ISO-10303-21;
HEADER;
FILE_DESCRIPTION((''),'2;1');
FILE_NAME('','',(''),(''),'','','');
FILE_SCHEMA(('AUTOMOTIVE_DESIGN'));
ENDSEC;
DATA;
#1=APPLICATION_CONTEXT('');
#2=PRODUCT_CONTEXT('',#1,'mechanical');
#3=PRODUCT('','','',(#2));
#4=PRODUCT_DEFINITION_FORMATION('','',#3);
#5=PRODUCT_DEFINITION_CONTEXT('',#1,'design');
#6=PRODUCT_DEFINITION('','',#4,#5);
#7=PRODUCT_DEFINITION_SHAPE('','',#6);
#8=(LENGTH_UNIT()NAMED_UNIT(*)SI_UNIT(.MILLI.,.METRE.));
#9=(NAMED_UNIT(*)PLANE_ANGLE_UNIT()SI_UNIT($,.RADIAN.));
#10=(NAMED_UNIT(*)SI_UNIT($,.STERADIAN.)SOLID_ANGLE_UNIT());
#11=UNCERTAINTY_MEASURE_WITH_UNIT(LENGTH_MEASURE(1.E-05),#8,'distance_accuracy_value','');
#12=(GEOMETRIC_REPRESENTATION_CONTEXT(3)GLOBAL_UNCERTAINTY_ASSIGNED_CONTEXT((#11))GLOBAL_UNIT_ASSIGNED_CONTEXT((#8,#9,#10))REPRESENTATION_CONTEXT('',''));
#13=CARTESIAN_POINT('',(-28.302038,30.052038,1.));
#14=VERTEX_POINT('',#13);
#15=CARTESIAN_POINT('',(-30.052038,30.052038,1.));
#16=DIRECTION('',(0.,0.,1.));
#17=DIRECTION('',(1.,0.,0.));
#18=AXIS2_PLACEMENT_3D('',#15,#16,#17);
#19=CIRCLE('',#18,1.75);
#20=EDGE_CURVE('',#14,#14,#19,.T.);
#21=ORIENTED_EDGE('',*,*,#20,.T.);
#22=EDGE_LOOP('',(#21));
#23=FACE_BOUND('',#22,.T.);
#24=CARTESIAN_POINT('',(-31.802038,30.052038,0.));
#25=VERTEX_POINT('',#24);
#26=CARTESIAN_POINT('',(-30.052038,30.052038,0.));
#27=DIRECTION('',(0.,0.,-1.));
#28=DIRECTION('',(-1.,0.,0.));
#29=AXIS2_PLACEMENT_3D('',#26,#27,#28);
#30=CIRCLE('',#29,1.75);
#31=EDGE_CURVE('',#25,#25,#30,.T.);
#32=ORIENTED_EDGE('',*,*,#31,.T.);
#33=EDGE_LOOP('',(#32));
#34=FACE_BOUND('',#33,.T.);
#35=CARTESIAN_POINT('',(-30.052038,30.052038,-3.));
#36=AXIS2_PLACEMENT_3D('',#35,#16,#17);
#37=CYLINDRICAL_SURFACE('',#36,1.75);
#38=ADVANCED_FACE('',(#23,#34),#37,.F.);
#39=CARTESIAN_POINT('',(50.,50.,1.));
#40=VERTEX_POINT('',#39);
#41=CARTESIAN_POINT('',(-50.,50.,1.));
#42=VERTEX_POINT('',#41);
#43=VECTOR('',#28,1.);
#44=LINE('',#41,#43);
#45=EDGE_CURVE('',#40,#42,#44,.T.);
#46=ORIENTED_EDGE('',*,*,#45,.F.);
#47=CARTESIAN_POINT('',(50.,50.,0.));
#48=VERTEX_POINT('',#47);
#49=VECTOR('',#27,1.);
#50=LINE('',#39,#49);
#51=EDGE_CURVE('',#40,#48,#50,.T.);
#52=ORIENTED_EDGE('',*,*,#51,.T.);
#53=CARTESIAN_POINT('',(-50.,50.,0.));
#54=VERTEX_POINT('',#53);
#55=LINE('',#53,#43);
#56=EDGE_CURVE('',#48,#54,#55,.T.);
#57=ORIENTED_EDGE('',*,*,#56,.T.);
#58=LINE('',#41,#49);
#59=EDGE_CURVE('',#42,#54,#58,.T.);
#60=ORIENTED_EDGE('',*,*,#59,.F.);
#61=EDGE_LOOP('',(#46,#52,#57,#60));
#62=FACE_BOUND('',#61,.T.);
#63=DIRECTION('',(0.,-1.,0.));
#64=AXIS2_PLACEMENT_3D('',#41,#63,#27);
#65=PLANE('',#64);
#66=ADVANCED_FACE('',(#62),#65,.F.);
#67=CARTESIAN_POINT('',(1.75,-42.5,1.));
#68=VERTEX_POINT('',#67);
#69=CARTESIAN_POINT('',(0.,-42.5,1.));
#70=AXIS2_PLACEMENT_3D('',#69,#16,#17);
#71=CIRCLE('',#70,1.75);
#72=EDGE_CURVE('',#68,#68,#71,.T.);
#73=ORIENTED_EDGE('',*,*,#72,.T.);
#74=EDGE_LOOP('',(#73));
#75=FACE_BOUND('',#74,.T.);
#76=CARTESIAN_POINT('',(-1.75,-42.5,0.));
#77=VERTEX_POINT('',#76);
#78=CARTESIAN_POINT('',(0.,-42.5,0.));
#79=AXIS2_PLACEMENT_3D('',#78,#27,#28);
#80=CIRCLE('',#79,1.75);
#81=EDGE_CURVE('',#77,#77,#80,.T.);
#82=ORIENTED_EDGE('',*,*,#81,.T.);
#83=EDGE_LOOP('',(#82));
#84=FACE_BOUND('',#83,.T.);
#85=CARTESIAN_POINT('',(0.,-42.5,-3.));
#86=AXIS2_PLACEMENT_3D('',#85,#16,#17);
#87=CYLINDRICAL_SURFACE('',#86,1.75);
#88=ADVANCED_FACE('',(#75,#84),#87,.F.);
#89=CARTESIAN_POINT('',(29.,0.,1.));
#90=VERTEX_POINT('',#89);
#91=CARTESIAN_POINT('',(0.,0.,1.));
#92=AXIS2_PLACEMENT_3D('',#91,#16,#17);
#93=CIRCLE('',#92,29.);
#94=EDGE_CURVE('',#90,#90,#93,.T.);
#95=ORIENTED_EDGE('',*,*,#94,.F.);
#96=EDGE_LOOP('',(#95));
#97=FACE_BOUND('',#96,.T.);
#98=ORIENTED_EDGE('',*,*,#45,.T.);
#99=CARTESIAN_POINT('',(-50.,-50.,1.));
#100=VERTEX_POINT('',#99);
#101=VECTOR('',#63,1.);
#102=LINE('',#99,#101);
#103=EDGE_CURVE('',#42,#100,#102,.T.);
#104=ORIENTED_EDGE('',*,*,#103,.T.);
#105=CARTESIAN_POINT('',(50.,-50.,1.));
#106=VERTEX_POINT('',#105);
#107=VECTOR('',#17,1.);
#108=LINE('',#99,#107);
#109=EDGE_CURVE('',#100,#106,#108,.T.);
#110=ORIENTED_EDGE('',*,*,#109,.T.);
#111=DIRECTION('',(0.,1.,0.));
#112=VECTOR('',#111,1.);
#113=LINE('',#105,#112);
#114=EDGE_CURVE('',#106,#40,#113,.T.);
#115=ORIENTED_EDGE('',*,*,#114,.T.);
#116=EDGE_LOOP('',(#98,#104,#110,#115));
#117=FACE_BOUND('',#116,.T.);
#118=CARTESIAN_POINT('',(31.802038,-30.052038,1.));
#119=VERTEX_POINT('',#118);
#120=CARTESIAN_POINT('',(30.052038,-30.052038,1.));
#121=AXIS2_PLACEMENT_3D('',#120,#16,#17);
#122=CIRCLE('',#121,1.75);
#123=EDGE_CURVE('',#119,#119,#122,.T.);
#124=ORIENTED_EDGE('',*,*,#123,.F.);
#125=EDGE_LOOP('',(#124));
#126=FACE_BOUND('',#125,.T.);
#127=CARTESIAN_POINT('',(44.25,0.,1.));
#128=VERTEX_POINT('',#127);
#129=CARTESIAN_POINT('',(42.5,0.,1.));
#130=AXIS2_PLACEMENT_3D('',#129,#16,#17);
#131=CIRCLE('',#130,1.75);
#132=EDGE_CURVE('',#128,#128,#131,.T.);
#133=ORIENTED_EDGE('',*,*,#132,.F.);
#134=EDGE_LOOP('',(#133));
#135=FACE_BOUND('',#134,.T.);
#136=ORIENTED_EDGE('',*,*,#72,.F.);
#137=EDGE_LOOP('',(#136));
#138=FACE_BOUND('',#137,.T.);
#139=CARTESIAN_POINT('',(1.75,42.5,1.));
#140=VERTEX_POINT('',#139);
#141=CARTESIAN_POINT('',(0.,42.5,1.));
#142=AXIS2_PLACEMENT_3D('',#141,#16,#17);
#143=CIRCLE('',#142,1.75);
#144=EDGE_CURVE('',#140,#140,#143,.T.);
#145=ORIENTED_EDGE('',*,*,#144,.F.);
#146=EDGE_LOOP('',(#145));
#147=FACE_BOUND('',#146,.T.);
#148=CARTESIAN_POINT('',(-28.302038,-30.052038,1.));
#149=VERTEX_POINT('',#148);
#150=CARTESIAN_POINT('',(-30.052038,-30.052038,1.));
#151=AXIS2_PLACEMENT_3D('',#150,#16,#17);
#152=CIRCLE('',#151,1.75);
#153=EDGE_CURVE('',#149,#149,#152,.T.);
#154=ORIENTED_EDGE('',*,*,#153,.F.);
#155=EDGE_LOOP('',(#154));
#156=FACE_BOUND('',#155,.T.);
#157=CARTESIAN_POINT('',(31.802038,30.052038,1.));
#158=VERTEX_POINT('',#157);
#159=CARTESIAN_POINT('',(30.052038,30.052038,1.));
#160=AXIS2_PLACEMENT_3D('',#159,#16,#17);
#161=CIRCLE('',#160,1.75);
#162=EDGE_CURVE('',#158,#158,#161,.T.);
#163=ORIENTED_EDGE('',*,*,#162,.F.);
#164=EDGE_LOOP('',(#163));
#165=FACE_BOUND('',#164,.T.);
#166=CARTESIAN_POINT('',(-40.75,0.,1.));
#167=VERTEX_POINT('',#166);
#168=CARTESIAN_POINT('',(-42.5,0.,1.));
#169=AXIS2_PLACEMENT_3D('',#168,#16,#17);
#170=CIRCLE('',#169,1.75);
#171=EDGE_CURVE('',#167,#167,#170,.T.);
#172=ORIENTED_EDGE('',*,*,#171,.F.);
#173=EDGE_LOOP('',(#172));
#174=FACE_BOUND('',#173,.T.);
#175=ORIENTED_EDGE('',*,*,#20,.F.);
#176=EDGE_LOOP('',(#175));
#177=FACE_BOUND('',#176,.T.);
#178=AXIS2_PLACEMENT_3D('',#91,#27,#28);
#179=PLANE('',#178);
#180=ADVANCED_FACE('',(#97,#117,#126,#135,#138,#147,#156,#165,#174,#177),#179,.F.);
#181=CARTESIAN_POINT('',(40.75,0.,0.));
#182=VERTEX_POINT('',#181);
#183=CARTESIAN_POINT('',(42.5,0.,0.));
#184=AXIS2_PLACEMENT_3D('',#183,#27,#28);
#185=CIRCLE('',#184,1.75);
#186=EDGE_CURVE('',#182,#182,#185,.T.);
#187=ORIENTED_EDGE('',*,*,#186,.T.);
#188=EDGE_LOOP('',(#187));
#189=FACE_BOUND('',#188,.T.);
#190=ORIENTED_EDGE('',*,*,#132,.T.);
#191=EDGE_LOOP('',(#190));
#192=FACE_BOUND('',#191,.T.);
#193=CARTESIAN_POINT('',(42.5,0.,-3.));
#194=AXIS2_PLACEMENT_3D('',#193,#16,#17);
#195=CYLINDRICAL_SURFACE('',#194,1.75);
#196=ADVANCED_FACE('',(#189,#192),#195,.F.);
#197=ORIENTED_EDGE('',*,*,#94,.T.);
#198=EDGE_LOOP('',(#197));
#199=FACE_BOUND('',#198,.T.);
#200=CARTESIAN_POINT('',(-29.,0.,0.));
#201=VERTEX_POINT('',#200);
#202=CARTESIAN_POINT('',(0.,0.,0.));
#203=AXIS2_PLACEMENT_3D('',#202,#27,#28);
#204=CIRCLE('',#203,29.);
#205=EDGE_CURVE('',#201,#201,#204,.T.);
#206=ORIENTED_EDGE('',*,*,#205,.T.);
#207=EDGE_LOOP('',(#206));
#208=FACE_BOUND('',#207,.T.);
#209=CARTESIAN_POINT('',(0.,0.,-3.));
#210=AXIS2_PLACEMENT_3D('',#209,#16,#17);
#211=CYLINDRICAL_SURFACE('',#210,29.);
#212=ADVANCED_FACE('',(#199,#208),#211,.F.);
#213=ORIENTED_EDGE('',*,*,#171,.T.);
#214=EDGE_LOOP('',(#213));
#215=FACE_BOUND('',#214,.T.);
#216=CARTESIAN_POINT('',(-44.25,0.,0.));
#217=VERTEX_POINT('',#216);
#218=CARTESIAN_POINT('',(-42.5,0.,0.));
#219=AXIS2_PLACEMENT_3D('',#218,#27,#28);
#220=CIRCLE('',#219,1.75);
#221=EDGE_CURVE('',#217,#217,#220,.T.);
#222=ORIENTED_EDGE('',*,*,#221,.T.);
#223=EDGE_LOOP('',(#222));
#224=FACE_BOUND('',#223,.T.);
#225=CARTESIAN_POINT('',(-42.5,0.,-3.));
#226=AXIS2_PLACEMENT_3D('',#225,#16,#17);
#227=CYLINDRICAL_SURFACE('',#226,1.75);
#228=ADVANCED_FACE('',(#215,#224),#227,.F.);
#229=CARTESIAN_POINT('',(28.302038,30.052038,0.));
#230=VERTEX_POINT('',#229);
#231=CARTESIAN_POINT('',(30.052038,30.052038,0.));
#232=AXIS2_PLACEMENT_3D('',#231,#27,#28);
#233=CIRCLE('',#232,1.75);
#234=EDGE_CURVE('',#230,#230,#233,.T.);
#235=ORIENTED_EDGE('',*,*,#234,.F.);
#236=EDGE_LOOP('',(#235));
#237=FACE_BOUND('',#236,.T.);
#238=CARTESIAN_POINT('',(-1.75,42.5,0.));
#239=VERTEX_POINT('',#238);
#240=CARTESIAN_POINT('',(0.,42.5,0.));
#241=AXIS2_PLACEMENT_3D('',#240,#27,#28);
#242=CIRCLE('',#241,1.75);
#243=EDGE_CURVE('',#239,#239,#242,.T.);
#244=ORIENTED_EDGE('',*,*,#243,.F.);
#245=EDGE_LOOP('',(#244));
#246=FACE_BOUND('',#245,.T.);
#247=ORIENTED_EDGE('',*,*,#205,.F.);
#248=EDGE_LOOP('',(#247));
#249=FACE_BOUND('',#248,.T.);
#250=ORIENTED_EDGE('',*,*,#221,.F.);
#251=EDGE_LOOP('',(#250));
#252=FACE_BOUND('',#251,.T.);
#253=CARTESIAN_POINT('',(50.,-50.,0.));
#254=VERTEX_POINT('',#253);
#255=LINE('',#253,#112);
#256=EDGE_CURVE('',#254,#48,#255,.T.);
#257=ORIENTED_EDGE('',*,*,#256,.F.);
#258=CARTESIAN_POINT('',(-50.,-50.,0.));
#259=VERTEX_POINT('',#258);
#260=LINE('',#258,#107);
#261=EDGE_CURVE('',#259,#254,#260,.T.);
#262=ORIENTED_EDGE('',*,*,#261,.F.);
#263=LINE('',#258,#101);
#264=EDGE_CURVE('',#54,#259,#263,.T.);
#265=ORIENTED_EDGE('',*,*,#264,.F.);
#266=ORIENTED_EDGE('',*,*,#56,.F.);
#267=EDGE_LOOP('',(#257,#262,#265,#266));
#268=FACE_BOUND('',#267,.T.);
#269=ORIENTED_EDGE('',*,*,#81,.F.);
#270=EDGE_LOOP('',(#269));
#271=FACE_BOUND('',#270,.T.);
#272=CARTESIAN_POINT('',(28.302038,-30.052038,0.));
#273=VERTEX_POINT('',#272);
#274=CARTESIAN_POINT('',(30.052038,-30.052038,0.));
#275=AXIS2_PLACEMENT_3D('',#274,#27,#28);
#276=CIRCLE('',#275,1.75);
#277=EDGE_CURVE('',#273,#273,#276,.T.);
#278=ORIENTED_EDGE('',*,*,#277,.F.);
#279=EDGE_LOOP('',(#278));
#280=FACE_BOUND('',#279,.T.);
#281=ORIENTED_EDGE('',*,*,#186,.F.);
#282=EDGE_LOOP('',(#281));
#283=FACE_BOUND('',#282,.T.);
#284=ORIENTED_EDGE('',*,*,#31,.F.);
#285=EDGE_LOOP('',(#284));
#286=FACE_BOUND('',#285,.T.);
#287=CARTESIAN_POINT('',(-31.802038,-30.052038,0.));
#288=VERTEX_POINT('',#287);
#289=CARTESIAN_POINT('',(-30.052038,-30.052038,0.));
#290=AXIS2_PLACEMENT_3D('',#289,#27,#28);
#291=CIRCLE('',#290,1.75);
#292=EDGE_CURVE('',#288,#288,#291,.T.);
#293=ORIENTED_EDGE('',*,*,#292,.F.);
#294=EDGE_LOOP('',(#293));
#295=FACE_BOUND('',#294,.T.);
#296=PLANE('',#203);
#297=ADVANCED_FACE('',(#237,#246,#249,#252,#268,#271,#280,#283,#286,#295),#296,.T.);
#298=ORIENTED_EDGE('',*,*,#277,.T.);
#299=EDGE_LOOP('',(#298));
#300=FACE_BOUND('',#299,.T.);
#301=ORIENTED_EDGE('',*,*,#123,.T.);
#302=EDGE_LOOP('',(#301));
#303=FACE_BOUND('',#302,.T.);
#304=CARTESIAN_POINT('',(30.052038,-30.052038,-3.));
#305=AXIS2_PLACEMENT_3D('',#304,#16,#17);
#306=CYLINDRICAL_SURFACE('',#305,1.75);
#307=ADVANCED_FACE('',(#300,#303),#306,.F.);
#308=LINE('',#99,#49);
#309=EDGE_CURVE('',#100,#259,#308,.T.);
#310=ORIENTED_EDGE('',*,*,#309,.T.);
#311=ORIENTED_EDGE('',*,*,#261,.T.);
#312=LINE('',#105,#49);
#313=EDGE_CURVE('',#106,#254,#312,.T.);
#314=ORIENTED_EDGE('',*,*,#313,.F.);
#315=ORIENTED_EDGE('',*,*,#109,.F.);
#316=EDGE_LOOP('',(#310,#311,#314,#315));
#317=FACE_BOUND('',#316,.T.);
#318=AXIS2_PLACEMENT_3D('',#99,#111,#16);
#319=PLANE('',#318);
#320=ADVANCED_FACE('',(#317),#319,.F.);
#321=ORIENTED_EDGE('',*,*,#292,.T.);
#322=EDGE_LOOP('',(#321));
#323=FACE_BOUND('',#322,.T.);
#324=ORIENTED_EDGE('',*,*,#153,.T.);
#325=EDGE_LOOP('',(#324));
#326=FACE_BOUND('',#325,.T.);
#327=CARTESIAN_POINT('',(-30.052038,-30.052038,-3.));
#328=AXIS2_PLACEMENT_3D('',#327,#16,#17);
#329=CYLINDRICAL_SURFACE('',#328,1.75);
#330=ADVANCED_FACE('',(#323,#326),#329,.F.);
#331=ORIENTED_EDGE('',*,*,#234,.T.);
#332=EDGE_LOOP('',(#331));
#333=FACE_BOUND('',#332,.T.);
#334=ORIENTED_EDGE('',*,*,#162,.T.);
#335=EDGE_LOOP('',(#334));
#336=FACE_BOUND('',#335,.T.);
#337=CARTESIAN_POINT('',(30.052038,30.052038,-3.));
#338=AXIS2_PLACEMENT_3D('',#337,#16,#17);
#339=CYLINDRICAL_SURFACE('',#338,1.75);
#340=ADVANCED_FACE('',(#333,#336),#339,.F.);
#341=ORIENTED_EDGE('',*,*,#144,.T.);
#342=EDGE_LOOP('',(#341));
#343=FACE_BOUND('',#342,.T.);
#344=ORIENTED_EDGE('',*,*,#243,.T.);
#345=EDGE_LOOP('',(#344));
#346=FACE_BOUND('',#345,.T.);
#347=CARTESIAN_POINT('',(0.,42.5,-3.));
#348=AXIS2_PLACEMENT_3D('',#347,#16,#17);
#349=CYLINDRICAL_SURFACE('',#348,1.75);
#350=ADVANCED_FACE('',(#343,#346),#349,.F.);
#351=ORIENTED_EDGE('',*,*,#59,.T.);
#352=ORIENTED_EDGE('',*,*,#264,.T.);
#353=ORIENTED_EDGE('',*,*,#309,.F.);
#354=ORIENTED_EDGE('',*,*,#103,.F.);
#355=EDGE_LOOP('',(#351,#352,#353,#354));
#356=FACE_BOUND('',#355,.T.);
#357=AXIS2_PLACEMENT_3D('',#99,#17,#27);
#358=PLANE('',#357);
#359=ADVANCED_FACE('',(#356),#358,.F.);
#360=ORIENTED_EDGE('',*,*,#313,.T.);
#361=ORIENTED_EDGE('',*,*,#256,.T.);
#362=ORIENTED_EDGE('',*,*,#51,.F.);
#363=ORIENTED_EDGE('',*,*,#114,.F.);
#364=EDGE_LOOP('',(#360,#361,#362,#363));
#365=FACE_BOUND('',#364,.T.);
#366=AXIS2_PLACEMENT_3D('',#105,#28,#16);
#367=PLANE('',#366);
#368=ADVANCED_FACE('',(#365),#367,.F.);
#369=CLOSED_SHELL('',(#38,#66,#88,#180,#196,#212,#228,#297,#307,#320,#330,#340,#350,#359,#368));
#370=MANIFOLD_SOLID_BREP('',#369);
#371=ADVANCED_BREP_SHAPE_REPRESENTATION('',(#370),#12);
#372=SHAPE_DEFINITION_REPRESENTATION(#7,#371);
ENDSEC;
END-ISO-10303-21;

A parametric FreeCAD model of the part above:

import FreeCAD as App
import Part
import Sketcher

doc = App.newDocument("Part")
body = doc.addObject("PartDesign::Body", "Body")

# Sketch on XY plane
sketch1 = body.newObject("Sketcher::SketchObject", "Sketch")
sketch1.AttachmentSupport = (doc.getObject("XY_Plane"), [""])
sketch1.MapMode = "FlatFace"
sketch1.addGeometry([
    Part.LineSegment(App.Vector(-50, 50, 0), App.Vector(-50, -50, 0)),
    Part.LineSegment(App.Vector(-50, -50, 0), App.Vector(50, -50, 0)),
    Part.LineSegment(App.Vector(50, -50, 0), App.Vector(50, 50, 0)),
    Part.LineSegment(App.Vector(50, 50, 0), App.Vector(-50, 50, 0)),
], False)
sketch1.addConstraint([
    Sketcher.Constraint("Coincident", 0, 2, 1, 1),
    Sketcher.Constraint("Coincident", 1, 2, 2, 1),
    Sketcher.Constraint("Coincident", 2, 2, 3, 1),
    Sketcher.Constraint("Coincident", 3, 2, 0, 1),
    Sketcher.Constraint("Vertical", 0),
    Sketcher.Constraint("Horizontal", 1),
    Sketcher.Constraint("Vertical", 2),
    Sketcher.Constraint("Horizontal", 3),
    Sketcher.Constraint("Symmetric", 0, 2, 2, 2, -1, 1),
    Sketcher.Constraint("Equal", 3, 0),
    Sketcher.Constraint("DistanceX", 1, 1, 1, 2, 100.0),
])
pad1 = body.newObject("PartDesign::Pad", "Pad")
pad1.Profile = sketch1
pad1.Length = 1

# Sketch on XY plane
sketch2 = body.newObject("Sketcher::SketchObject", "Sketch001")
sketch2.AttachmentSupport = (doc.getObject("XY_Plane"), [""])
sketch2.MapMode = "FlatFace"
sketch2.AttachmentOffset = App.Placement(App.Vector(0, 0, 1), App.Rotation())
sketch2.addGeometry([
    Part.Circle(App.Vector(-42.5, 0, 0), App.Vector(0, 0, 1), 1.75),  # 0
    Part.Circle(App.Vector(-30.052038, 30.052038, 0), App.Vector(0, 0, 1), 1.75),  # 1
    Part.Circle(App.Vector(0, 42.5, 0), App.Vector(0, 0, 1), 1.75),  # 2
    Part.Circle(App.Vector(30.052038, 30.052038, 0), App.Vector(0, 0, 1), 1.75),  # 3
    Part.Circle(App.Vector(42.5, 0, 0), App.Vector(0, 0, 1), 1.75),  # 4
    Part.Circle(App.Vector(30.052038, -30.052038, 0), App.Vector(0, 0, 1), 1.75),  # 5
    Part.Circle(App.Vector(0, -42.5, 0), App.Vector(0, 0, 1), 1.75),  # 6
    Part.Circle(App.Vector(-30.052038, -30.052038, 0), App.Vector(0, 0, 1), 1.75),  # 7
], False)
sketch2.addConstraint([
    Sketcher.Constraint("Equal", 0, 1),
    Sketcher.Constraint("Equal", 1, 2),
    Sketcher.Constraint("Equal", 2, 3),
    Sketcher.Constraint("Equal", 3, 4),
    Sketcher.Constraint("Equal", 4, 5),
    Sketcher.Constraint("Equal", 5, 6),
    Sketcher.Constraint("Equal", 6, 7),
    Sketcher.Constraint("Symmetric", 0, 3, 4, 3, -1, 1),
    Sketcher.Constraint("Symmetric", 1, 3, 5, 3, -1, 1),
    Sketcher.Constraint("Symmetric", 2, 3, 6, 3, -1, 1),
    Sketcher.Constraint("Symmetric", 3, 3, 7, 3, -1, 1),
    Sketcher.Constraint("Symmetric", 1, 3, 3, 3, -2),
    Sketcher.Constraint("PointOnObject", 0, 3, -1),
    Sketcher.Constraint("PointOnObject", 2, 3, -2),
    Sketcher.Constraint("Diameter", 0, 3.5),
    Sketcher.Constraint("DistanceX", 0, 3, 4, 3, 85.0),
    Sketcher.Constraint("DistanceY", -1, 1, 2, 3, 42.5),
    Sketcher.Constraint("DistanceX", 1, 3, -1, 1, 30.052038),
    Sketcher.Constraint("DistanceY", -1, 1, 1, 3, 30.052038),
])
pocket1 = body.newObject("PartDesign::Pocket", "Pocket")
pocket1.Profile = sketch2
pocket1.Length = 4

# Sketch on XY plane
sketch3 = body.newObject("Sketcher::SketchObject", "Sketch002")
sketch3.AttachmentSupport = (doc.getObject("XY_Plane"), [""])
sketch3.MapMode = "FlatFace"
sketch3.AttachmentOffset = App.Placement(App.Vector(0, 0, 1), App.Rotation())
sketch3.addGeometry(Part.Circle(App.Vector(0, 0, 0), App.Vector(0, 0, 1), 29), False)
sketch3.addConstraint([
    Sketcher.Constraint("Coincident", 0, 3, -1, 1),
    Sketcher.Constraint("Diameter", 0, 58.0),
])
pocket2 = body.newObject("PartDesign::Pocket", "Pocket001")
pocket2.Profile = sketch3
pocket2.Length = 4

doc.recompute()
